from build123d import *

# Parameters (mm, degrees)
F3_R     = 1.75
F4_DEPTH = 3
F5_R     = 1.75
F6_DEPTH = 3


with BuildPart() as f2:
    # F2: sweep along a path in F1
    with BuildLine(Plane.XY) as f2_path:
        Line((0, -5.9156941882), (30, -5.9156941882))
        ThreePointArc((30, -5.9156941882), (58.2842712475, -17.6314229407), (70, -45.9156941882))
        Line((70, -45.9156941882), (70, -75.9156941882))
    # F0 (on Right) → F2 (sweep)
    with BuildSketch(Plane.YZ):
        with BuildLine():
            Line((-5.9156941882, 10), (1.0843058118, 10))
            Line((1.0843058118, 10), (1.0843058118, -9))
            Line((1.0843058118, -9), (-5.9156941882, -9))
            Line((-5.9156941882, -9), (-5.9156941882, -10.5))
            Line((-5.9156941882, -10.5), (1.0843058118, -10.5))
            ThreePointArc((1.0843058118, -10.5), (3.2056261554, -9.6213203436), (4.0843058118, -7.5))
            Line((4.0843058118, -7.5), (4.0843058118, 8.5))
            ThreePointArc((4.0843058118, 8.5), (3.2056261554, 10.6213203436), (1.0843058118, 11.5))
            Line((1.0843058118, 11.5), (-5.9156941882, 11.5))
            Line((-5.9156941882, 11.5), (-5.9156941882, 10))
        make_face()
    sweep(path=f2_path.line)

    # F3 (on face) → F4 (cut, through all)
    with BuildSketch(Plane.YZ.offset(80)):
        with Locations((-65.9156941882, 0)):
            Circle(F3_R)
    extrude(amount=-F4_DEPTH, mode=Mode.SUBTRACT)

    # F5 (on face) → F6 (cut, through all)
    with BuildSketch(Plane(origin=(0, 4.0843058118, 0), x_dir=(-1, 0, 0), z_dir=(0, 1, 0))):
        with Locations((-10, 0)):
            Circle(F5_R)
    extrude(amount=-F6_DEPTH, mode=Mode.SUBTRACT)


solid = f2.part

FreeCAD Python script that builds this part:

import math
import FreeCAD as App
import Part
import Sketcher

V = App.Vector
Q = App.Units.Quantity

doc = App.newDocument("Part")
params = doc.addObject("Spreadsheet::Sheet", "Params")
for row, (alias, value) in enumerate([
    ("sketch1_radius", "3 mm"),
    ("sketch1_width", "7 mm"),
    ("sketch1_height", "19 mm"),
    ("sketch1_height2", "16 mm"),
    ("sketch2_radius", "40 mm"),
    ("sketch2_width", "30 mm"),
    ("sketch3_diameter", "3.5 mm"),
    ("sketch4_diameter", "3.5 mm"),
], start=1):
    params.set(f"A{row}", alias)
    params.set(f"B{row}", "=" + value)
    params.setAlias(f"B{row}", alias)

body = doc.addObject("PartDesign::Body", "Body")

# Sketch on YZ plane
sketch1 = body.newObject("Sketcher::SketchObject", "Sketch")
sketch1.AttachmentSupport = (doc.getObject("YZ_Plane"), [""])
sketch1.MapMode = "FlatFace"
sketch1.addGeometry(Part.LineSegment(V(-5.9, 10, 0), V(1.1, 10, 0)), False)
sketch1.addGeometry(Part.LineSegment(V(1.1, 10, 0), V(1.1, -9, 0)), False)
sketch1.addGeometry(Part.LineSegment(V(1.1, -9, 0), V(-5.9, -9, 0)), False)
sketch1.addGeometry(Part.LineSegment(V(-5.9, -9, 0), V(-5.9, -10.5, 0)), False)
sketch1.addGeometry(Part.LineSegment(V(-5.9, -10.5, 0), V(1.1, -10.5, 0)), False)
sketch1.addGeometry(Part.ArcOfCircle(Part.Circle(V(1.1, -7.5, 0), V(0, 0, 1), 3), math.radians(-90), math.radians(0)), False)
sketch1.addGeometry(Part.LineSegment(V(4.1, -7.5, 0), V(4.1, 8.5, 0)), False)
sketch1.addGeometry(Part.ArcOfCircle(Part.Circle(V(1.1, 8.5, 0), V(0, 0, 1), 3), math.radians(0), math.radians(90)), False)
sketch1.addGeometry(Part.LineSegment(V(1.1, 11.5, 0), V(-5.9, 11.5, 0)), False)
sketch1.addGeometry(Part.LineSegment(V(-5.9, 11.5, 0), V(-5.9, 10, 0)), False)
sketch1.addConstraint(Sketcher.Constraint("Coincident", 0, 2, 1, 1))
sketch1.addConstraint(Sketcher.Constraint("Coincident", 1, 2, 2, 1))
sketch1.addConstraint(Sketcher.Constraint("Coincident", 2, 2, 3, 1))
sketch1.addConstraint(Sketcher.Constraint("Coincident", 3, 2, 4, 1))
sketch1.addConstraint(Sketcher.Constraint("Tangent", 4, 2, 5, 1))
sketch1.addConstraint(Sketcher.Constraint("Tangent", 5, 2, 6, 1))
sketch1.addConstraint(Sketcher.Constraint("Tangent", 6, 2, 7, 1))
sketch1.addConstraint(Sketcher.Constraint("Tangent", 7, 2, 8, 1))
sketch1.addConstraint(Sketcher.Constraint("Coincident", 8, 2, 9, 1))
sketch1.addConstraint(Sketcher.Constraint("Coincident", 9, 2, 0, 1))
sketch1.addConstraint(Sketcher.Constraint("Horizontal", 0))
sketch1.addConstraint(Sketcher.Constraint("Vertical", 1))
sketch1.addConstraint(Sketcher.Constraint("Horizontal", 2))
sketch1.addConstraint(Sketcher.Constraint("Vertical", 3))
sketch1.addConstraint(Sketcher.Constraint("Horizontal", 4))
sketch1.addConstraint(Sketcher.Constraint("Vertical", 6))
sketch1.addConstraint(Sketcher.Constraint("Horizontal", 8))
sketch1.addConstraint(Sketcher.Constraint("Vertical", 9))
sketch1.addConstraint(Sketcher.Constraint("Equal", 5, 7))
sketch1.addConstraint(Sketcher.Constraint("Vertical", 7, 3, 0, 2))
sketch1.addConstraint(Sketcher.Constraint("Vertical", 3, 2, 8, 2))
sketch1.addConstraint(Sketcher.Constraint("Equal", 3, 9))
sketch1.addConstraint(Sketcher.Constraint("Radius", 5, Q("3 mm")))
sketch1.addConstraint(Sketcher.Constraint("DistanceX", 0, 1, 0, 2, Q("7 mm")))
sketch1.addConstraint(Sketcher.Constraint("DistanceY", 1, 2, 1, 1, Q("19 mm")))
sketch1.addConstraint(Sketcher.Constraint("DistanceY", 6, 1, 6, 2, Q("16 mm")))
sketch1.addConstraint(Sketcher.Constraint("DistanceY", -1, 1, 0, 2, Q("10 mm")))
sketch1.addConstraint(Sketcher.Constraint("DistanceX", -1, 1, 5, 3, Q("1.084306 mm")))
sketch1.setExpression("Constraints[22]", "Params.sketch1_radius")
sketch1.setExpression("Constraints[23]", "Params.sketch1_width")
sketch1.setExpression("Constraints[24]", "Params.sketch1_height")
sketch1.setExpression("Constraints[25]", "Params.sketch1_height2")

# Sketch on XY plane
sketch2 = body.newObject("Sketcher::SketchObject", "Sketch001")
sketch2.AttachmentSupport = (doc.getObject("XY_Plane"), [""])
sketch2.MapMode = "FlatFace"
sketch2.addGeometry(Part.LineSegment(V(0, -6, 0), V(30, -6, 0)), False)
sketch2.addGeometry(Part.ArcOfCircle(Part.Circle(V(30, -46, 0), V(0, 0, 1), 40), math.radians(0), math.radians(90)), False)
sketch2.addGeometry(Part.LineSegment(V(70, -46, 0), V(70, -76, 0)), False)
sketch2.addConstraint(Sketcher.Constraint("Tangent", 0, 2, 1, 2))
sketch2.addConstraint(Sketcher.Constraint("Tangent", 1, 1, 2, 1))
sketch2.addConstraint(Sketcher.Constraint("Horizontal", 0))
sketch2.addConstraint(Sketcher.Constraint("Vertical", 2))
sketch2.addConstraint(Sketcher.Constraint("PointOnObject", 0, 1, -2))
sketch2.addConstraint(Sketcher.Constraint("Equal", 0, 2))
sketch2.addConstraint(Sketcher.Constraint("Radius", 1, Q("40 mm")))
sketch2.addConstraint(Sketcher.Constraint("DistanceX", 0, 1, 0, 2, Q("30 mm")))
sketch2.addConstraint(Sketcher.Constraint("DistanceY", 1, 3, -1, 1, Q("45.915694 mm")))
sketch2.setExpression("Constraints[6]", "Params.sketch2_radius")
sketch2.setExpression("Constraints[7]", "Params.sketch2_width")
doc.recompute()

additivepipe = body.newObject("PartDesign::AdditivePipe", "AdditivePipe")
additivepipe.Profile = sketch1
additivepipe.Spine = (sketch2, ["Edge1", "Edge2", "Edge3"])

# Sketch on YZ plane
sketch3 = body.newObject("Sketcher::SketchObject", "Sketch002")
sketch3.AttachmentSupport = (doc.getObject("YZ_Plane"), [""])
sketch3.MapMode = "FlatFace"
sketch3.AttachmentOffset = App.Placement(V(0, 0, 80), App.Rotation())
sketch3.addGeometry(Part.Circle(V(-65.9, 0, 0), V(0, 0, 1), 1.8), False)
sketch3.addConstraint(Sketcher.Constraint("PointOnObject", 0, 3, -1))
sketch3.addConstraint(Sketcher.Constraint("Diameter", 0, Q("3.5 mm")))
sketch3.addConstraint(Sketcher.Constraint("DistanceX", 0, 3, -1, 1, Q("65.915694 mm")))
sketch3.setExpression("Constraints[1]", "Params.sketch3_diameter")
pocket1 = body.newObject("PartDesign::Pocket", "Pocket")
pocket1.Profile = sketch3
pocket1.Type = "ThroughAll"

# Sketch on XZ plane
sketch4 = body.newObject("Sketcher::SketchObject", "Sketch003")
sketch4.AttachmentSupport = (doc.getObject("XZ_Plane"), [""])
sketch4.MapMode = "FlatFace"
sketch4.AttachmentOffset = App.Placement(V(0, 0, -4.084306), App.Rotation())
sketch4.addGeometry(Part.Circle(V(10, 0, 0), V(0, 0, 1), 1.8), False)
sketch4.addConstraint(Sketcher.Constraint("PointOnObject", 0, 3, -1))
sketch4.addConstraint(Sketcher.Constraint("Diameter", 0, Q("3.5 mm")))
sketch4.addConstraint(Sketcher.Constraint("DistanceX", -1, 1, 0, 3, Q("10 mm")))
sketch4.setExpression("Constraints[1]", "Params.sketch4_diameter")
pocket2 = body.newObject("PartDesign::Pocket", "Pocket001")
pocket2.Profile = sketch4
pocket2.Type = "ThroughAll"
pocket2.Reversed = True

doc.recompute()
